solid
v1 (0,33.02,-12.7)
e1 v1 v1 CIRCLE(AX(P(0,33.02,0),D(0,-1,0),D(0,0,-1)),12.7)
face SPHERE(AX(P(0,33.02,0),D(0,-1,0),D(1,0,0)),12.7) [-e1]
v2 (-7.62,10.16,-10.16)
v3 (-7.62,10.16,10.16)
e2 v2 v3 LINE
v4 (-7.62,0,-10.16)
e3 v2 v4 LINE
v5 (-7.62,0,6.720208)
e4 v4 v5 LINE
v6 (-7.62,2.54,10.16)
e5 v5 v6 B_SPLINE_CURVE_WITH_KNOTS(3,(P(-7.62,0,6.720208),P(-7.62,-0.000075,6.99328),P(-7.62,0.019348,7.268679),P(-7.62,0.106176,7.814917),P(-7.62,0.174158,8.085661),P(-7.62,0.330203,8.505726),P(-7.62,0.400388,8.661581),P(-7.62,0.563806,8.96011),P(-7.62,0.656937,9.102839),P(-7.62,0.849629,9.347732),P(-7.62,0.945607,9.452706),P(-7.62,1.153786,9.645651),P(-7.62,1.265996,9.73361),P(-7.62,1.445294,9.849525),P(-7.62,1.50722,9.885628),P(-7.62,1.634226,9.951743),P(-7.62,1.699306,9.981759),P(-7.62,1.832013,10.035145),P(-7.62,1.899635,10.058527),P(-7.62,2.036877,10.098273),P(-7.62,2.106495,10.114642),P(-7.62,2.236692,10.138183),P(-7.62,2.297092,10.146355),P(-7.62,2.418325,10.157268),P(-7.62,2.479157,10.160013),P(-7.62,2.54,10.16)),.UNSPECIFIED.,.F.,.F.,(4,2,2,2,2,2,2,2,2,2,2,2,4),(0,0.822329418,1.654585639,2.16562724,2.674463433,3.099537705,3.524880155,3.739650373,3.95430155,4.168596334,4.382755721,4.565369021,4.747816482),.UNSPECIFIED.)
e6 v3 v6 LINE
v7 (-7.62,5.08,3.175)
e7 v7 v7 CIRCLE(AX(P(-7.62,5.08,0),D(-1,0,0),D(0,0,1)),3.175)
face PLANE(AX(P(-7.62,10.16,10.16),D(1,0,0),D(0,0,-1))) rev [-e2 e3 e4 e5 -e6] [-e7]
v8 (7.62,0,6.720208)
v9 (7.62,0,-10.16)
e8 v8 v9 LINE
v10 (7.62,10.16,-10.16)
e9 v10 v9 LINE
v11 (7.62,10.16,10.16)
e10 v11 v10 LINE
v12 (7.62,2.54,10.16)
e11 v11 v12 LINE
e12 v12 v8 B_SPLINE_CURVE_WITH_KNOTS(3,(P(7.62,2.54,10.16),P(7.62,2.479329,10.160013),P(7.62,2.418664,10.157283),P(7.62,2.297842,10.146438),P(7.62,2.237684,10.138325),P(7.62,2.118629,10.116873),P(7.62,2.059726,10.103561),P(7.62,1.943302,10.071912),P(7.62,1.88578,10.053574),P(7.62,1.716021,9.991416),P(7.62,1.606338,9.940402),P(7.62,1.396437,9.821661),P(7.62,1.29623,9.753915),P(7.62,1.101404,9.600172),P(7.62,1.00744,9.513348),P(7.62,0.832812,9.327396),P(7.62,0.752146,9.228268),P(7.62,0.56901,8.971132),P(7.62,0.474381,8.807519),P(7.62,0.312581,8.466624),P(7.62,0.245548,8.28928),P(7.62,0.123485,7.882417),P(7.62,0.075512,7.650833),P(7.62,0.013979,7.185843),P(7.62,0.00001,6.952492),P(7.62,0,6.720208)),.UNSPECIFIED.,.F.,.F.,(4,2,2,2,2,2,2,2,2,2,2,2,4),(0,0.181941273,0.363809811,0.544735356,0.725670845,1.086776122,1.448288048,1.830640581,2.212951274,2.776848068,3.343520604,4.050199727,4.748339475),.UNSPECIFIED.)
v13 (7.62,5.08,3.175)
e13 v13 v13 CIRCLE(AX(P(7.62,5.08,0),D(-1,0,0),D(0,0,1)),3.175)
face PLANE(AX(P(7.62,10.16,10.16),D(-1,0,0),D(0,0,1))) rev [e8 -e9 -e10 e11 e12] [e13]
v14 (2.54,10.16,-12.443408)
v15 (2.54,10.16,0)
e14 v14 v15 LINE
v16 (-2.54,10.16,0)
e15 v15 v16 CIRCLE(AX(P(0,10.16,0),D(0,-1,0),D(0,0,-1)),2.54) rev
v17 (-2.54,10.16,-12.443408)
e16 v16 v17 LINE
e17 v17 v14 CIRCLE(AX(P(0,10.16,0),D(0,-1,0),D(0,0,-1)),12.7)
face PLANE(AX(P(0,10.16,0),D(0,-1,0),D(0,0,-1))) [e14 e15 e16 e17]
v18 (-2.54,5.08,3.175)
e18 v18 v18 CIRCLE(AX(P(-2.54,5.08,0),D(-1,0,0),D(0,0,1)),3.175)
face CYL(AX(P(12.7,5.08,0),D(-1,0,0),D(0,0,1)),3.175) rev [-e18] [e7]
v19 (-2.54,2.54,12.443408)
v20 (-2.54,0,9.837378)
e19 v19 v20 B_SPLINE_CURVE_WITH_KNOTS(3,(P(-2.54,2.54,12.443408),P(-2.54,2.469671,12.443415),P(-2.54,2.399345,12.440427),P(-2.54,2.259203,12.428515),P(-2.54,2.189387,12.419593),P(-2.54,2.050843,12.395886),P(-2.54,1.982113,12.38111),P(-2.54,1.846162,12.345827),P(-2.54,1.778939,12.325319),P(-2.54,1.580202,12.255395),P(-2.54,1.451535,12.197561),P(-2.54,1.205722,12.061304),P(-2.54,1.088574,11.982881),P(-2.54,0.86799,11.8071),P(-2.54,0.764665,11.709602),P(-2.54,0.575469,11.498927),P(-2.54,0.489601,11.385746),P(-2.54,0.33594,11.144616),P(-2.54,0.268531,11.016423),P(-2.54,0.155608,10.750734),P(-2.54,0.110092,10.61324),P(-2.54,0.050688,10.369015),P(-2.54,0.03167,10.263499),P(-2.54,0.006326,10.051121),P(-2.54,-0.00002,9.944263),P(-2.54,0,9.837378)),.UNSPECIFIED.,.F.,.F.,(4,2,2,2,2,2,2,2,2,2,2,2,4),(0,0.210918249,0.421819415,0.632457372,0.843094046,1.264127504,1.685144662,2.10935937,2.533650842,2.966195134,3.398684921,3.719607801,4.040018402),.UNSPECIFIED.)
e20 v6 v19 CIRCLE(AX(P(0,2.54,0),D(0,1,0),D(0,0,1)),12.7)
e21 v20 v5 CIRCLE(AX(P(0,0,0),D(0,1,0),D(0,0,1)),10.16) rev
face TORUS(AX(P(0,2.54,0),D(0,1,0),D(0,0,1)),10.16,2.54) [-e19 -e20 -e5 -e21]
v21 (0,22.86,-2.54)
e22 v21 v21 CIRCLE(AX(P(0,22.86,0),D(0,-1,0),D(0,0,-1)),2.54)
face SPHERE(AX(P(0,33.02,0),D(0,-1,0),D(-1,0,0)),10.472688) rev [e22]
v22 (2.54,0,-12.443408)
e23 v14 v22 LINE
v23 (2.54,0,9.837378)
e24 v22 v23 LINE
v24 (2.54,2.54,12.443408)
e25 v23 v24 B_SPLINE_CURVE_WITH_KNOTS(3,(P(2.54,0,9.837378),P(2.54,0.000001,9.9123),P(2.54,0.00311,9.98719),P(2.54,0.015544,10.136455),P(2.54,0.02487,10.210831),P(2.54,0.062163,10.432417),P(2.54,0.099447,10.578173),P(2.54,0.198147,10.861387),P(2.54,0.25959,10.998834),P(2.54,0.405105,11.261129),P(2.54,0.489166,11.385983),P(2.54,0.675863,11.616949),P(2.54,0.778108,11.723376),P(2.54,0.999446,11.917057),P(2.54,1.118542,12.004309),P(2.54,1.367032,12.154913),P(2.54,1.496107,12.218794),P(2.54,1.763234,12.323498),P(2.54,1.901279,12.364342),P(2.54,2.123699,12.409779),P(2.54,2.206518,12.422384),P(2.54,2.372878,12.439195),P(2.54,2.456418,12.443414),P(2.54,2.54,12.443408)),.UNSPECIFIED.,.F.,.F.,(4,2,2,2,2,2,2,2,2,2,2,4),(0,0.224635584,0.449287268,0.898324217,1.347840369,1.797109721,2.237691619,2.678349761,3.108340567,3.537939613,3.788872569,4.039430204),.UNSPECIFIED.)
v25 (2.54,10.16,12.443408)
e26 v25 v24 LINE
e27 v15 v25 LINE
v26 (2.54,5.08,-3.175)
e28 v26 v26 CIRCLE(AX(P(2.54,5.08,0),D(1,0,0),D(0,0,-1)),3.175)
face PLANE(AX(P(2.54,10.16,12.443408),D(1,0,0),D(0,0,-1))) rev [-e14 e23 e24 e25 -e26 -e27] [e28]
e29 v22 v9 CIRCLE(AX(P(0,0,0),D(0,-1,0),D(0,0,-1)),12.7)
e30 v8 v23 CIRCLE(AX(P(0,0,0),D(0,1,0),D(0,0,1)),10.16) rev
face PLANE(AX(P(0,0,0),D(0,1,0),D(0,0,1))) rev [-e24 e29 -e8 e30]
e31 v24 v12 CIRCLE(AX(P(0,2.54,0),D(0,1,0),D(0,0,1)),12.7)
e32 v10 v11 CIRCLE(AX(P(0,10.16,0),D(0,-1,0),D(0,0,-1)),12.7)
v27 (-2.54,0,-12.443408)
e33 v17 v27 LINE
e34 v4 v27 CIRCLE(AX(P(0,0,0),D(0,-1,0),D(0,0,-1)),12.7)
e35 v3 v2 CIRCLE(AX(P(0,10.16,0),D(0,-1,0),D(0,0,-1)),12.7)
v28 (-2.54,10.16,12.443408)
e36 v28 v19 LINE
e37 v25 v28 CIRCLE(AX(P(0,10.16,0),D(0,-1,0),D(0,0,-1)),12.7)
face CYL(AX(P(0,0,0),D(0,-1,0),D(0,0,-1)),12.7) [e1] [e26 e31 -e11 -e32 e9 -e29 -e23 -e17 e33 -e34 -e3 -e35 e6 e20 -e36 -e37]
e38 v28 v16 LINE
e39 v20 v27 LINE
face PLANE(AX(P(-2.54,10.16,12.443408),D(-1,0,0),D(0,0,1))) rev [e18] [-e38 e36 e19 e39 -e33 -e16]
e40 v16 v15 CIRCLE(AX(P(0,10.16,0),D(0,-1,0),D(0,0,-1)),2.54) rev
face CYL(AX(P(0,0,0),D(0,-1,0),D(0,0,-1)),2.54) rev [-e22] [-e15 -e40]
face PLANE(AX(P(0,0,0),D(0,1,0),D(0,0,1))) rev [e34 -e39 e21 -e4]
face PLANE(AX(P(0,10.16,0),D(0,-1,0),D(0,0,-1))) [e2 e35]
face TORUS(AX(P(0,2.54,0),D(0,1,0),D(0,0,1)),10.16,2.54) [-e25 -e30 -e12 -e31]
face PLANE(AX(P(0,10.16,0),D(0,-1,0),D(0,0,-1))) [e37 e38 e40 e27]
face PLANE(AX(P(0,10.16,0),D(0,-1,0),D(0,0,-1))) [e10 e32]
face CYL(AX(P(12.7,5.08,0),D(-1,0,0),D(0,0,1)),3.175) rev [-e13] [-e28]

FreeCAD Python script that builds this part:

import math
import FreeCAD as App
import Part
import Sketcher

V = App.Vector
Q = App.Units.Quantity


def edges_at(feature, points):
    """Names of the edges that pass closest to the given points."""
    edges = feature.Shape.Edges
    near = lambda p: min(range(len(edges)), key=lambda i: edges[i].distToShape(Part.Vertex(*p))[0])
    return sorted({f"Edge{near(p) + 1}" for p in points})

doc = App.newDocument("Part")
body = doc.addObject("PartDesign::Body", "Body")

# Sketch on XY plane
sketch1 = body.newObject("Sketcher::SketchObject", "Sketch")
sketch1.AttachmentSupport = (doc.getObject("XY_Plane"), [""])
sketch1.MapMode = "FlatFace"
sketch1.addGeometry([
    Part.LineSegment(V(0, 0, 0), V(0, 5.6, 0)),  # 0
    Part.LineSegment(V(0, 5.6, 0), V(-2.5, 5.6, 0)),  # 1
    Part.LineSegment(V(-2.5, 5.6, 0), V(-2.5, 22.9, 0)),  # 2
    Part.ArcOfCircle(Part.Circle(V(0, 33, 0), V(0, 0, 1), 10.5), math.radians(90), math.radians(256)),  # 3
    Part.LineSegment(V(0, 43.5, 0), V(0, 45.7, 0)),  # 4
    Part.ArcOfCircle(Part.Circle(V(0, 33, 0), V(0, 0, 1), 12.7), math.radians(90), math.radians(180)),  # 5
    Part.LineSegment(V(-12.7, 33, 0), V(-12.7, 0, 0)),  # 6
    Part.LineSegment(V(-12.7, 0, 0), V(0, 0, 0)),  # 7
], False)
sketch1.addConstraint([
    Sketcher.Constraint("Coincident", 0, 2, 1, 1),
    Sketcher.Constraint("Coincident", 1, 2, 2, 1),
    Sketcher.Constraint("Coincident", 2, 2, 3, 2),
    Sketcher.Constraint("Coincident", 3, 1, 4, 1),
    Sketcher.Constraint("Coincident", 4, 2, 5, 1),
    Sketcher.Constraint("Tangent", 5, 2, 6, 1),
    Sketcher.Constraint("Coincident", 6, 2, 7, 1),
    Sketcher.Constraint("Coincident", 7, 2, 0, 1),
    Sketcher.Constraint("Vertical", 0),
    Sketcher.Constraint("Horizontal", 1),
    Sketcher.Constraint("Vertical", 2),
    Sketcher.Constraint("Vertical", 4),
    Sketcher.Constraint("Vertical", 6),
    Sketcher.Constraint("Horizontal", 7),
    Sketcher.Constraint("Coincident", 7, 2, -1, 1),
    Sketcher.Constraint("Coincident", 5, 3, 3, 3),
    Sketcher.Constraint("PointOnObject", 3, 3, -2),
    Sketcher.Constraint("PointOnObject", 3, 1, -2),
    Sketcher.Constraint("Radius", 5, Q("0.5 in")),
    Sketcher.Constraint("DistanceX", 1, 2, 1, 1, Q("0.1 in")),
    Sketcher.Constraint("DistanceY", 6, 2, 6, 1, Q("1.3 in")),
    Sketcher.Constraint("DistanceY", -1, 1, 2, 2, Q("0.9 in")),
    Sketcher.Constraint("DistanceY", 0, 1, 0, 2, 5.602635),
])
revolution = body.newObject("PartDesign::Revolution", "Revolution")
revolution.Profile = sketch1
revolution.ReferenceAxis = (sketch1, ["V_Axis"])
revolution.Angle = 360

# Sketch on XZ plane
sketch2 = body.newObject("Sketcher::SketchObject", "Sketch001")
sketch2.AttachmentSupport = (doc.getObject("XZ_Plane"), [""])
sketch2.MapMode = "FlatFace"
sketch2.addGeometry([
    Part.LineSegment(V(-3, 12, 0), V(-3, -12, 0)),  # 0
    Part.ArcOfCircle(Part.Circle(V(0, 0, 0), V(0, 0, 1), 13), math.radians(-102), math.radians(-78)),  # 1
    Part.LineSegment(V(3, -12, 0), V(3, 12, 0)),  # 2
    Part.ArcOfCircle(Part.Circle(V(0, 0, 0), V(0, 0, 1), 13), math.radians(78), math.radians(102)),  # 3
    Part.LineSegment(V(-8, -10, 0), V(-8, 10, 0)),  # 4
    Part.ArcOfCircle(Part.Circle(V(0, 0, 0), V(0, 0, 1), 13), math.radians(127), math.radians(233)),  # 5
    Part.LineSegment(V(8, 10, 0), V(8, -10, 0)),  # 6
    Part.ArcOfCircle(Part.Circle(V(0, 0, 0), V(0, 0, 1), 13), math.radians(-53), math.radians(53)),  # 7
], False)
sketch2.addConstraint([
    Sketcher.Constraint("Coincident", 0, 2, 1, 1),
    Sketcher.Constraint("Coincident", 1, 2, 2, 1),
    Sketcher.Constraint("Coincident", 2, 2, 3, 1),
    Sketcher.Constraint("Coincident", 3, 2, 0, 1),
    Sketcher.Constraint("Coincident", 4, 1, 5, 2),
    Sketcher.Constraint("Coincident", 5, 1, 4, 2),
    Sketcher.Constraint("Coincident", 6, 1, 7, 2),
    Sketcher.Constraint("Coincident", 7, 1, 6, 2),
    Sketcher.Constraint("Vertical", 0),
    Sketcher.Constraint("Vertical", 2),
    Sketcher.Constraint("Vertical", 4),
    Sketcher.Constraint("Vertical", 6),
    Sketcher.Constraint("Coincident", 1, 3, -1, 1),
    Sketcher.Constraint("Coincident", 3, 3, -1, 1),
    Sketcher.Constraint("Coincident", 5, 3, -1, 1),
    Sketcher.Constraint("Coincident", 7, 3, -1, 1),
    Sketcher.Constraint("Equal", 1, 3),
    Sketcher.Constraint("Equal", 3, 5),
    Sketcher.Constraint("Equal", 5, 7),
    Sketcher.Constraint("Horizontal", 0, 2, 1, 2),
    Sketcher.Constraint("Horizontal", 5, 1, 6, 1),
    Sketcher.Constraint("Radius", 1, Q("0.5 in")),
    Sketcher.Constraint("DistanceY", 4, 1, 4, 2, Q("0.8 in")),
    Sketcher.Constraint("DistanceX", 0, 2, -1, 1, Q("0.1 in")),
])
pocket1 = body.newObject("PartDesign::Pocket", "Pocket")
pocket1.Profile = sketch2
pocket1.Length = Q("0.4 in")

# Sketch on YZ plane
sketch3 = body.newObject("Sketcher::SketchObject", "Sketch002")
sketch3.AttachmentSupport = (doc.getObject("YZ_Plane"), [""])
sketch3.MapMode = "FlatFace"
sketch3.AttachmentOffset = App.Placement(V(0, 0, -0.3 * 25.4), App.Rotation())
sketch3.addGeometry(Part.Circle(V(5.1, 0, 0), V(0, 0, 1), 3.2), False)
sketch3.addConstraint([
    Sketcher.Constraint("PointOnObject", 0, 3, -1),
    Sketcher.Constraint("Diameter", 0, Q("0.25 in")),
    Sketcher.Constraint("DistanceX", -1, 1, 0, 3, Q("0.2 in")),
])
pocket2 = body.newObject("PartDesign::Pocket", "Pocket001")
pocket2.Profile = sketch3
pocket2.Type = "ThroughAll"
pocket2.Reversed = True
doc.recompute()

fillet = body.newObject("PartDesign::Fillet", "Fillet")
fillet.Base = (pocket2, edges_at(pocket2, [(5.207, 0, 11.584), (-5.207, 0, 11.584)]))
fillet.Radius = Q("0.1 in")

doc.recompute()
